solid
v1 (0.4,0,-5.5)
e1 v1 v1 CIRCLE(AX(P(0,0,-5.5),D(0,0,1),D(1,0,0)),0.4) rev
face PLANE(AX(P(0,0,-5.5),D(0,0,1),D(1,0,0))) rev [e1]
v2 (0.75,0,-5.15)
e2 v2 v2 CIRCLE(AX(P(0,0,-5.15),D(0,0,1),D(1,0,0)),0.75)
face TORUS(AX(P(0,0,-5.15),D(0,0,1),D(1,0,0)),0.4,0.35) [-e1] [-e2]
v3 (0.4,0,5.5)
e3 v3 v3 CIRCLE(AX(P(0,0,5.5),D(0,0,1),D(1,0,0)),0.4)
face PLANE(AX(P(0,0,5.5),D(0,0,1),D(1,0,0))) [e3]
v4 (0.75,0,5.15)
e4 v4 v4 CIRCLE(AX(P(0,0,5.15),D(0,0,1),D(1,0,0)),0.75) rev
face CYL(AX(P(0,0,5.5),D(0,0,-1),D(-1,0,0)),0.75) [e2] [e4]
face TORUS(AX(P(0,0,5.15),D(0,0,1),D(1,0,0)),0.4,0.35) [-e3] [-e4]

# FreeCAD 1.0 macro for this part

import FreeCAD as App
import Part
import Sketcher
from FreeCAD import Vector
Q = App.Units.Quantity


def edges_at(feature, points):
    """Names of the edges that pass closest to the given points."""
    edges = feature.Shape.Edges
    near = lambda p: min(range(len(edges)), key=lambda i: edges[i].distToShape(Part.Vertex(*p))[0])
    return sorted({f"Edge{near(p) + 1}" for p in points})

doc = App.newDocument("Part")
params = doc.addObject("Spreadsheet::Sheet", "Params")
for row, (alias, value) in enumerate([
    ("sketch1_diameter", "1.5 mm"),
    ("pad1_length", "11 mm"),
    ("fillet_radius", "0.35 mm"),
], start=1):
    params.set(f"A{row}", alias)
    params.set(f"B{row}", "=" + value)
    params.setAlias(f"B{row}", alias)

body = doc.addObject("PartDesign::Body", "Body")

# Sketch on XY plane
sketch1 = body.newObject("Sketcher::SketchObject", "Sketch")
sketch1.AttachmentSupport = (doc.getObject("XY_Plane"), [""])
sketch1.MapMode = "FlatFace"
sketch1.addGeometry(Part.Circle(Vector(0, 0, 0), Vector(0, 0, 1), 0.8), False)
sketch1.addConstraint([
    Sketcher.Constraint("Coincident", 0, 3, -1, 1),
    Sketcher.Constraint("Diameter", 0, Q("1.5 mm")),
])
sketch1.setExpression("Constraints[1]", "Params.sketch1_diameter")
pad1 = body.newObject("PartDesign::Pad", "Pad")
pad1.Profile = sketch1
pad1.setExpression("Length", "Params.pad1_length")
pad1.Midplane = True
doc.recompute()

fillet = body.newObject("PartDesign::Fillet", "Fillet")
fillet.Base = (pad1, edges_at(pad1, [(-0.75, 0, -5.5), (-0.75, 0, 5.5)]))
fillet.setExpression("Radius", "Params.fillet_radius")

doc.recompute()
